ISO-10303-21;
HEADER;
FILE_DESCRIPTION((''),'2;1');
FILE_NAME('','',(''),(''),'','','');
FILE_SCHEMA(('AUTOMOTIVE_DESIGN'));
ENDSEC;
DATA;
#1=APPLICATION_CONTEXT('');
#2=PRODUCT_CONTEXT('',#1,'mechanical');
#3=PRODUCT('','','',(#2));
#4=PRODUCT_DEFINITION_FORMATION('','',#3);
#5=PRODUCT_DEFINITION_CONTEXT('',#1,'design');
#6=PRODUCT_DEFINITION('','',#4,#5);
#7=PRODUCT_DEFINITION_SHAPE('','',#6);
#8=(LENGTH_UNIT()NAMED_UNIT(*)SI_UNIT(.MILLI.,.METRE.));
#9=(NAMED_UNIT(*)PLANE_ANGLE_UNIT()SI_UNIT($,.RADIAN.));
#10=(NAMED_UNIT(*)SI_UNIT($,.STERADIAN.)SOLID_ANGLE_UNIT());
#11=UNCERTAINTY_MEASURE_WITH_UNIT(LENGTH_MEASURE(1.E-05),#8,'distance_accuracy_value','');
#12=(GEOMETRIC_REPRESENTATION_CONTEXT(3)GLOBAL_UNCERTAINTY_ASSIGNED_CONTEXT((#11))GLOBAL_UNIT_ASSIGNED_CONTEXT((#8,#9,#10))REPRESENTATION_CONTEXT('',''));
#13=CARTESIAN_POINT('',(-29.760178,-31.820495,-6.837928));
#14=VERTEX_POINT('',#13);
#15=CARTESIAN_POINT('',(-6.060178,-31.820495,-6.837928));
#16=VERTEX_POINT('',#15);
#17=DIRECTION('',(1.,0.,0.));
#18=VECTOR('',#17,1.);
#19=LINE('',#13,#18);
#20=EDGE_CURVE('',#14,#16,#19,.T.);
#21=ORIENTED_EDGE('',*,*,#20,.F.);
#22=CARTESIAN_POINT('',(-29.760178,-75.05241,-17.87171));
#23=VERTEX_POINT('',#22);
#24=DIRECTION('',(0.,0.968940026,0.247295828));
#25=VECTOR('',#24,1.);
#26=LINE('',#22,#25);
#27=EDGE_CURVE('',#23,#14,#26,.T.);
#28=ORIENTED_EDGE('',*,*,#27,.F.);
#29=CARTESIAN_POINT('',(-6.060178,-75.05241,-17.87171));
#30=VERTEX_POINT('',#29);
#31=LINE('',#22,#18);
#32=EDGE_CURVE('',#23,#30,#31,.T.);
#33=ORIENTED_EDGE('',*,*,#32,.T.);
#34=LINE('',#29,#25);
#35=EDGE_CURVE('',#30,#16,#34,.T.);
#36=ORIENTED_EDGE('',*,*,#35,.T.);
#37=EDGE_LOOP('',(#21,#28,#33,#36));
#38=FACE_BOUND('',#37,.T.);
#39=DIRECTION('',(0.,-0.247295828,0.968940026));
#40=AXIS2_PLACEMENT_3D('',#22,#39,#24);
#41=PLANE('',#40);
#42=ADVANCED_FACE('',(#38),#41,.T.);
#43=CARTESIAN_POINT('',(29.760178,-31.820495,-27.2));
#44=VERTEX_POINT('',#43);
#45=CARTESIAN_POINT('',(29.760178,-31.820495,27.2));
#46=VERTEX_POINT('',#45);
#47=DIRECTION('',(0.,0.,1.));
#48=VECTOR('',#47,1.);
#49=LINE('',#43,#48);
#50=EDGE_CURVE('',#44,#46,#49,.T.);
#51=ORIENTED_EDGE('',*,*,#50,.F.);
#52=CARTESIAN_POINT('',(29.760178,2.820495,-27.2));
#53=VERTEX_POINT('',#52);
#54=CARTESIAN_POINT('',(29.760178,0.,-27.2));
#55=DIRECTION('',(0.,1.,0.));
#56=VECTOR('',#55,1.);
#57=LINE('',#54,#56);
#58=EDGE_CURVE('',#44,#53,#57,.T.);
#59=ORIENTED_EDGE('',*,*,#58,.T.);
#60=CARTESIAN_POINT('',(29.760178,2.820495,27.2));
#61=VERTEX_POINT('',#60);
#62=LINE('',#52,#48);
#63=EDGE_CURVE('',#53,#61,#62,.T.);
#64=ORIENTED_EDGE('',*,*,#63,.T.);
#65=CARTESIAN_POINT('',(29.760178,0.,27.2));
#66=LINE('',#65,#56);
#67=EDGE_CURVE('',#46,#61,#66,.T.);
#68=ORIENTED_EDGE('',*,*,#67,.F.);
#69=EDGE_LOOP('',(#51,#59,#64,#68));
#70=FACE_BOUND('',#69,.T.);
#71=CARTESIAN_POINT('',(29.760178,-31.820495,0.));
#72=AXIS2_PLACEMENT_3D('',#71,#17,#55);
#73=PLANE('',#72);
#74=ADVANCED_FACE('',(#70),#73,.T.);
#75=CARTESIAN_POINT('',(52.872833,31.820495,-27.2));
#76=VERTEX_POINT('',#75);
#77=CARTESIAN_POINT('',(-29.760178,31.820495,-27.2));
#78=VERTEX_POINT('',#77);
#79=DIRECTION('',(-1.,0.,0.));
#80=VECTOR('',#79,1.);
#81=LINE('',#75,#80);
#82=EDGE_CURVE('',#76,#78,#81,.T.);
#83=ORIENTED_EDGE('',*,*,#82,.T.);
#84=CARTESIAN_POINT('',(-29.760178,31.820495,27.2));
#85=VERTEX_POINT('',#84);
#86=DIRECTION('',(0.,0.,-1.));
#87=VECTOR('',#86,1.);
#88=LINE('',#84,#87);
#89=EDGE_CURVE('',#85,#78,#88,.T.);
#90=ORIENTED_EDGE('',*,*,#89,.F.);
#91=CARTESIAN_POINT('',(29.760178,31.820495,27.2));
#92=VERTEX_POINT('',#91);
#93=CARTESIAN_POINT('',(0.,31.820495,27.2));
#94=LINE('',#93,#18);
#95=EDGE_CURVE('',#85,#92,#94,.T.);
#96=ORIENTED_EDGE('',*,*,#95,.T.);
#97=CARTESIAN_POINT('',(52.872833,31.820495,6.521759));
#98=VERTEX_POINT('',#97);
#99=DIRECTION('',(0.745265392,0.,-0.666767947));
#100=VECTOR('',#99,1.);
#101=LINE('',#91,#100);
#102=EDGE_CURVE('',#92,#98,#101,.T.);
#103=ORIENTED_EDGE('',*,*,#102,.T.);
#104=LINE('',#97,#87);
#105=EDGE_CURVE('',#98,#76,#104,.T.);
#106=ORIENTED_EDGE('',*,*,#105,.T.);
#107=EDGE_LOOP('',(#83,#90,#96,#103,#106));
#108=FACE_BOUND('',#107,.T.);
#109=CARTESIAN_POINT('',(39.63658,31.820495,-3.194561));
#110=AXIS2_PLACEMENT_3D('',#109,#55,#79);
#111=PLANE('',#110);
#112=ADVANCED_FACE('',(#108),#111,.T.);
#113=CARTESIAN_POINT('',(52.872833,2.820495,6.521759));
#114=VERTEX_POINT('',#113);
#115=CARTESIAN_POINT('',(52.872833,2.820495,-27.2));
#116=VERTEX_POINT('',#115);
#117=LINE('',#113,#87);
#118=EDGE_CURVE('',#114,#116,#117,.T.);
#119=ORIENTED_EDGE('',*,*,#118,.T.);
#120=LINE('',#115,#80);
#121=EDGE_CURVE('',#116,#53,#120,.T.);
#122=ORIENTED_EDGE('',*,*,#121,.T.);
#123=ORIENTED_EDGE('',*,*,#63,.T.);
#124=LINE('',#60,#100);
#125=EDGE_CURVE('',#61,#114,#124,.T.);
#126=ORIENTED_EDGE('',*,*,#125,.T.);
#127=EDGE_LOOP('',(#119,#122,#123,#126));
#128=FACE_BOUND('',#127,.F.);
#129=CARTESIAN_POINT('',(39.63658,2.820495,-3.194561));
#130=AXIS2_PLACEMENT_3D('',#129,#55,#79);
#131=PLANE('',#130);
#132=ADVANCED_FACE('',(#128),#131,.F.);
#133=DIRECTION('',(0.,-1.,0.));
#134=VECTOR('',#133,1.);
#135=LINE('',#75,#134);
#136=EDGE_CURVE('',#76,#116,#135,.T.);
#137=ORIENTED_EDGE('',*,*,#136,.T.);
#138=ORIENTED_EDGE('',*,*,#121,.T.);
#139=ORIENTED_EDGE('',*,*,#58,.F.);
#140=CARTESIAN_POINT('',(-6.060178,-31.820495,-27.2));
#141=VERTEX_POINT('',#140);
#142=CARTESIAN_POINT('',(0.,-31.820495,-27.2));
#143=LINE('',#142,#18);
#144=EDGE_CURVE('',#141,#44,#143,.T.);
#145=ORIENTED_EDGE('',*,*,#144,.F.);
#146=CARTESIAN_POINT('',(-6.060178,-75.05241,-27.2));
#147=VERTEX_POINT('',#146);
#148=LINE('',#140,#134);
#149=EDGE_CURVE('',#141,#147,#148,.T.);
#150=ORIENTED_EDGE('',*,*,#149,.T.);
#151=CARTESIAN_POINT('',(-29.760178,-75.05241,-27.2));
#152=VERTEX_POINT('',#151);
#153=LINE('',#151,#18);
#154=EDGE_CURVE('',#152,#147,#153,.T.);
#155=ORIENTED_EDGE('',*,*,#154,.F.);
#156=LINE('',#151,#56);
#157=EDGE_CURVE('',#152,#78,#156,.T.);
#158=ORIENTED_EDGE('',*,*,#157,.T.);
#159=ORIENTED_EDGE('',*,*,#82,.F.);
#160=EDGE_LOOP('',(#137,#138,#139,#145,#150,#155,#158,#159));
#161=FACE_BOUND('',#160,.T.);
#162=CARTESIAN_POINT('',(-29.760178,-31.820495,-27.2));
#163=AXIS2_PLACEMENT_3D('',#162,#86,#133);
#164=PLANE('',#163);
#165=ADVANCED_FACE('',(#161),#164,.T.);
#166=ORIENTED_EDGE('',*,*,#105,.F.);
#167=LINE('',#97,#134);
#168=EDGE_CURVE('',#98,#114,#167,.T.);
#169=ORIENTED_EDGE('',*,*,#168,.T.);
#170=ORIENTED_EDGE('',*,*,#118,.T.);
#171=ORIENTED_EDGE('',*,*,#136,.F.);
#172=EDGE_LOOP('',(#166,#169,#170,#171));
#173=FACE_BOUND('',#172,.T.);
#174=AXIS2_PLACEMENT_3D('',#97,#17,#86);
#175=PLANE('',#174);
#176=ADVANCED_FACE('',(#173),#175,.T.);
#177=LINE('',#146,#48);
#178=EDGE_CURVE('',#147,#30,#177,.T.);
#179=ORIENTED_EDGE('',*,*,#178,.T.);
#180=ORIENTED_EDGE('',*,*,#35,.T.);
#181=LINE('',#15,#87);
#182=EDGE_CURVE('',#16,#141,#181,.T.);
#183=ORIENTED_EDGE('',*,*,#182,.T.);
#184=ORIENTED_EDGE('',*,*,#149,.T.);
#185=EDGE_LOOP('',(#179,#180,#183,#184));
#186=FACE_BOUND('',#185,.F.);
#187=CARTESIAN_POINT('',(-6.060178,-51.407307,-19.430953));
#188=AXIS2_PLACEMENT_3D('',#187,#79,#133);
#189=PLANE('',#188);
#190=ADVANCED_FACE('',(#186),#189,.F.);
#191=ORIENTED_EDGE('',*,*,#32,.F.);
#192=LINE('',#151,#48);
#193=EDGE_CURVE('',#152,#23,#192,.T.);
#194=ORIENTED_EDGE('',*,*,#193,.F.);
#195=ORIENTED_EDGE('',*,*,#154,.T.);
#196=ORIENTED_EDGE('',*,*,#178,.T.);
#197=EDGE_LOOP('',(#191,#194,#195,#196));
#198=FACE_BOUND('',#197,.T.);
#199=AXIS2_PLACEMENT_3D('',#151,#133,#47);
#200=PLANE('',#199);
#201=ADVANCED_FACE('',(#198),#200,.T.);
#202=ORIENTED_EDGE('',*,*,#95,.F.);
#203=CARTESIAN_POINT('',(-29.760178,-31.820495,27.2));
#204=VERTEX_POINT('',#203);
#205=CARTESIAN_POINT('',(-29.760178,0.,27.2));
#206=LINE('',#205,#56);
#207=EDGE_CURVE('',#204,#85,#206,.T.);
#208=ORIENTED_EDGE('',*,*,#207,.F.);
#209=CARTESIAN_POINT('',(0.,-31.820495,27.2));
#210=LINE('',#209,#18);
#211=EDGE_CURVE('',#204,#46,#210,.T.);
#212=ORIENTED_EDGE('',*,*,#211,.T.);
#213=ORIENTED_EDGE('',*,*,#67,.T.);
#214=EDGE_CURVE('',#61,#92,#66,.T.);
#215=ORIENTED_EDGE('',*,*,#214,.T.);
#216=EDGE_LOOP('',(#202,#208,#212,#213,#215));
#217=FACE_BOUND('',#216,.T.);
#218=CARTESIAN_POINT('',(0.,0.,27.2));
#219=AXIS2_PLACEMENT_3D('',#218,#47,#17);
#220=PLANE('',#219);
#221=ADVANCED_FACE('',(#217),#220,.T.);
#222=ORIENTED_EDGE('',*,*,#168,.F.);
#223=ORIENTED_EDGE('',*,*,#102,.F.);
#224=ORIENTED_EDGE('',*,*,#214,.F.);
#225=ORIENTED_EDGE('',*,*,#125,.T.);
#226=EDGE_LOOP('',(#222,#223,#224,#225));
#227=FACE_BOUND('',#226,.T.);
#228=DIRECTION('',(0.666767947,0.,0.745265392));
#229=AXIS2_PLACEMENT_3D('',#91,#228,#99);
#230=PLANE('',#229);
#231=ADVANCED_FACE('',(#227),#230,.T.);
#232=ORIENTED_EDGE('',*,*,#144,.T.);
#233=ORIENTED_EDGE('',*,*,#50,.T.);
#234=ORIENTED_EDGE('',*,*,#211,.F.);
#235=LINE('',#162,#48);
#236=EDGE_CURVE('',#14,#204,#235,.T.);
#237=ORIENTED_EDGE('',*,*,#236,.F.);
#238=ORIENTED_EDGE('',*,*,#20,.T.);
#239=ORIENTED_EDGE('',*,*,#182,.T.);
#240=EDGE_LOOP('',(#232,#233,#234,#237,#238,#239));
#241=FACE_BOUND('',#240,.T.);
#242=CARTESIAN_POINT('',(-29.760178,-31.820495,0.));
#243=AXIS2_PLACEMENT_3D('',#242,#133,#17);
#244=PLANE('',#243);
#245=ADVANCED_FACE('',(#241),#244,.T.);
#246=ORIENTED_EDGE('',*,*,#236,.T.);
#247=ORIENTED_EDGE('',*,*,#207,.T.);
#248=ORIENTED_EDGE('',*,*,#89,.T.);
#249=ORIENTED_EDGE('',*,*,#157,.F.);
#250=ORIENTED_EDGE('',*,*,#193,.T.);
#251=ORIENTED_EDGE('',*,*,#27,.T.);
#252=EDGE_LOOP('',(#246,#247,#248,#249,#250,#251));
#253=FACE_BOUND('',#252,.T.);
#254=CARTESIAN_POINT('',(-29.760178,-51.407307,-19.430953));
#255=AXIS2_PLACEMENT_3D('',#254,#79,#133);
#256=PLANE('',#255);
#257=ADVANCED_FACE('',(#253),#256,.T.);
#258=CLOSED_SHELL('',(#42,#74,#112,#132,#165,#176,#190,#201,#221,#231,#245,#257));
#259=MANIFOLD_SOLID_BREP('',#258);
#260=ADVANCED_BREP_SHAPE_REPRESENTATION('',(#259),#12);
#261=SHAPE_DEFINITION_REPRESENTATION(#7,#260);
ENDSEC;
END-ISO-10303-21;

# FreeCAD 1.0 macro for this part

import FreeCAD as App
import Part
import Sketcher
Q = App.Units.Quantity


def add_polygon(sketch, points):
    """Adds a closed chain of lines whose ends are joined by coincident constraints."""
    first, n = sketch.GeometryCount, len(points)
    for a, b in zip(points, points[1:] + points[:1]):
        sketch.addGeometry(Part.LineSegment(App.Vector(*a, 0), App.Vector(*b, 0)), False)
    for i in range(n):
        sketch.addConstraint(Sketcher.Constraint("Coincident", first + i, 2, first + (i + 1) % n, 1))

doc = App.newDocument("Part")
body = doc.addObject("PartDesign::Body", "Body")

sketch1 = doc.addObject("Sketcher::SketchObject", "Sketch")
body.addObject(sketch1)
sketch1.AttachmentSupport = (doc.XY_Plane, [""])
sketch1.MapMode = "FlatFace"
add_polygon(sketch1, [(-30, 32), (-30, -32), (30, -32), (30, 32)])
sketch1.addConstraint(Sketcher.Constraint("Vertical", 0))
sketch1.addConstraint(Sketcher.Constraint("Horizontal", 1))
sketch1.addConstraint(Sketcher.Constraint("Vertical", 2))
sketch1.addConstraint(Sketcher.Constraint("Horizontal", 3))
sketch1.addConstraint(Sketcher.Constraint("Symmetric", 0, 2, 2, 2, -1, 1))
sketch1.addConstraint(Sketcher.Constraint("DistanceY", 0, 2, 0, 1, Q("63.640989 mm")))
sketch1.addConstraint(Sketcher.Constraint("DistanceX", 1, 1, 1, 2, Q("59.520356 mm")))
pad1 = doc.addObject("PartDesign::Pad", "Pad")
body.addObject(pad1)
pad1.Profile = sketch1
pad1.Length = 54.4
pad1.Midplane = True

sketch2 = doc.addObject("Sketcher::SketchObject", "Sketch001")
body.addObject(sketch2)
sketch2.AttachmentSupport = (doc.XZ_Plane, [""])
sketch2.MapMode = "FlatFace"
sketch2.AttachmentOffset = App.Placement(App.Vector(0, 0, -31.820495), App.Rotation())
add_polygon(sketch2, [(30, -27), (30, 27), (53, 7), (53, -27)])
sketch2.addConstraint(Sketcher.Constraint("Vertical", 0))
sketch2.addConstraint(Sketcher.Constraint("Vertical", 2))
sketch2.addConstraint(Sketcher.Constraint("Horizontal", 3))
sketch2.addConstraint(Sketcher.Constraint("DistanceY", 0, 1, 0, 2, Q("54.4 mm")))
sketch2.addConstraint(Sketcher.Constraint("DistanceY", -1, 1, 0, 2, Q("27.2 mm")))
sketch2.addConstraint(Sketcher.Constraint("DistanceY", 2, 2, 2, 1, Q("33.721759 mm")))
sketch2.addConstraint(Sketcher.Constraint("Distance", 1, Q("31.01265 mm")))
sketch2.addConstraint(Sketcher.Constraint("DistanceX", -1, 1, 0, 2, Q("29.760178 mm")))
pad2 = doc.addObject("PartDesign::Pad", "Pad001")
body.addObject(pad2)
pad2.Profile = sketch2
pad2.Length = 29

sketch3 = doc.addObject("Sketcher::SketchObject", "Sketch002")
body.addObject(sketch3)
sketch3.AttachmentSupport = (doc.YZ_Plane, [""])
sketch3.MapMode = "FlatFace"
sketch3.AttachmentOffset = App.Placement(App.Vector(0, 0, -29.760178), App.Rotation())
add_polygon(sketch3, [(-32, -7), (-32, -27), (-75, -27), (-75, -18)])
sketch3.addConstraint(Sketcher.Constraint("Vertical", 0))
sketch3.addConstraint(Sketcher.Constraint("Horizontal", 1))
sketch3.addConstraint(Sketcher.Constraint("Vertical", 2))
sketch3.addConstraint(Sketcher.Constraint("DistanceY", 0, 2, -1, 1, Q("27.2 mm")))
sketch3.addConstraint(Sketcher.Constraint("DistanceY", 0, 2, 0, 1, Q("20.362072 mm")))
sketch3.addConstraint(Sketcher.Constraint("DistanceY", 2, 1, 2, 2, Q("9.32829 mm")))
sketch3.addConstraint(Sketcher.Constraint("Distance", 3, Q("44.617742 mm")))
sketch3.addConstraint(Sketcher.Constraint("DistanceX", 1, 2, -1, 1, Q("75.05241 mm")))
pad3 = doc.addObject("PartDesign::Pad", "Pad002")
body.addObject(pad3)
pad3.Profile = sketch3
pad3.Length = 23.7

doc.recompute()
